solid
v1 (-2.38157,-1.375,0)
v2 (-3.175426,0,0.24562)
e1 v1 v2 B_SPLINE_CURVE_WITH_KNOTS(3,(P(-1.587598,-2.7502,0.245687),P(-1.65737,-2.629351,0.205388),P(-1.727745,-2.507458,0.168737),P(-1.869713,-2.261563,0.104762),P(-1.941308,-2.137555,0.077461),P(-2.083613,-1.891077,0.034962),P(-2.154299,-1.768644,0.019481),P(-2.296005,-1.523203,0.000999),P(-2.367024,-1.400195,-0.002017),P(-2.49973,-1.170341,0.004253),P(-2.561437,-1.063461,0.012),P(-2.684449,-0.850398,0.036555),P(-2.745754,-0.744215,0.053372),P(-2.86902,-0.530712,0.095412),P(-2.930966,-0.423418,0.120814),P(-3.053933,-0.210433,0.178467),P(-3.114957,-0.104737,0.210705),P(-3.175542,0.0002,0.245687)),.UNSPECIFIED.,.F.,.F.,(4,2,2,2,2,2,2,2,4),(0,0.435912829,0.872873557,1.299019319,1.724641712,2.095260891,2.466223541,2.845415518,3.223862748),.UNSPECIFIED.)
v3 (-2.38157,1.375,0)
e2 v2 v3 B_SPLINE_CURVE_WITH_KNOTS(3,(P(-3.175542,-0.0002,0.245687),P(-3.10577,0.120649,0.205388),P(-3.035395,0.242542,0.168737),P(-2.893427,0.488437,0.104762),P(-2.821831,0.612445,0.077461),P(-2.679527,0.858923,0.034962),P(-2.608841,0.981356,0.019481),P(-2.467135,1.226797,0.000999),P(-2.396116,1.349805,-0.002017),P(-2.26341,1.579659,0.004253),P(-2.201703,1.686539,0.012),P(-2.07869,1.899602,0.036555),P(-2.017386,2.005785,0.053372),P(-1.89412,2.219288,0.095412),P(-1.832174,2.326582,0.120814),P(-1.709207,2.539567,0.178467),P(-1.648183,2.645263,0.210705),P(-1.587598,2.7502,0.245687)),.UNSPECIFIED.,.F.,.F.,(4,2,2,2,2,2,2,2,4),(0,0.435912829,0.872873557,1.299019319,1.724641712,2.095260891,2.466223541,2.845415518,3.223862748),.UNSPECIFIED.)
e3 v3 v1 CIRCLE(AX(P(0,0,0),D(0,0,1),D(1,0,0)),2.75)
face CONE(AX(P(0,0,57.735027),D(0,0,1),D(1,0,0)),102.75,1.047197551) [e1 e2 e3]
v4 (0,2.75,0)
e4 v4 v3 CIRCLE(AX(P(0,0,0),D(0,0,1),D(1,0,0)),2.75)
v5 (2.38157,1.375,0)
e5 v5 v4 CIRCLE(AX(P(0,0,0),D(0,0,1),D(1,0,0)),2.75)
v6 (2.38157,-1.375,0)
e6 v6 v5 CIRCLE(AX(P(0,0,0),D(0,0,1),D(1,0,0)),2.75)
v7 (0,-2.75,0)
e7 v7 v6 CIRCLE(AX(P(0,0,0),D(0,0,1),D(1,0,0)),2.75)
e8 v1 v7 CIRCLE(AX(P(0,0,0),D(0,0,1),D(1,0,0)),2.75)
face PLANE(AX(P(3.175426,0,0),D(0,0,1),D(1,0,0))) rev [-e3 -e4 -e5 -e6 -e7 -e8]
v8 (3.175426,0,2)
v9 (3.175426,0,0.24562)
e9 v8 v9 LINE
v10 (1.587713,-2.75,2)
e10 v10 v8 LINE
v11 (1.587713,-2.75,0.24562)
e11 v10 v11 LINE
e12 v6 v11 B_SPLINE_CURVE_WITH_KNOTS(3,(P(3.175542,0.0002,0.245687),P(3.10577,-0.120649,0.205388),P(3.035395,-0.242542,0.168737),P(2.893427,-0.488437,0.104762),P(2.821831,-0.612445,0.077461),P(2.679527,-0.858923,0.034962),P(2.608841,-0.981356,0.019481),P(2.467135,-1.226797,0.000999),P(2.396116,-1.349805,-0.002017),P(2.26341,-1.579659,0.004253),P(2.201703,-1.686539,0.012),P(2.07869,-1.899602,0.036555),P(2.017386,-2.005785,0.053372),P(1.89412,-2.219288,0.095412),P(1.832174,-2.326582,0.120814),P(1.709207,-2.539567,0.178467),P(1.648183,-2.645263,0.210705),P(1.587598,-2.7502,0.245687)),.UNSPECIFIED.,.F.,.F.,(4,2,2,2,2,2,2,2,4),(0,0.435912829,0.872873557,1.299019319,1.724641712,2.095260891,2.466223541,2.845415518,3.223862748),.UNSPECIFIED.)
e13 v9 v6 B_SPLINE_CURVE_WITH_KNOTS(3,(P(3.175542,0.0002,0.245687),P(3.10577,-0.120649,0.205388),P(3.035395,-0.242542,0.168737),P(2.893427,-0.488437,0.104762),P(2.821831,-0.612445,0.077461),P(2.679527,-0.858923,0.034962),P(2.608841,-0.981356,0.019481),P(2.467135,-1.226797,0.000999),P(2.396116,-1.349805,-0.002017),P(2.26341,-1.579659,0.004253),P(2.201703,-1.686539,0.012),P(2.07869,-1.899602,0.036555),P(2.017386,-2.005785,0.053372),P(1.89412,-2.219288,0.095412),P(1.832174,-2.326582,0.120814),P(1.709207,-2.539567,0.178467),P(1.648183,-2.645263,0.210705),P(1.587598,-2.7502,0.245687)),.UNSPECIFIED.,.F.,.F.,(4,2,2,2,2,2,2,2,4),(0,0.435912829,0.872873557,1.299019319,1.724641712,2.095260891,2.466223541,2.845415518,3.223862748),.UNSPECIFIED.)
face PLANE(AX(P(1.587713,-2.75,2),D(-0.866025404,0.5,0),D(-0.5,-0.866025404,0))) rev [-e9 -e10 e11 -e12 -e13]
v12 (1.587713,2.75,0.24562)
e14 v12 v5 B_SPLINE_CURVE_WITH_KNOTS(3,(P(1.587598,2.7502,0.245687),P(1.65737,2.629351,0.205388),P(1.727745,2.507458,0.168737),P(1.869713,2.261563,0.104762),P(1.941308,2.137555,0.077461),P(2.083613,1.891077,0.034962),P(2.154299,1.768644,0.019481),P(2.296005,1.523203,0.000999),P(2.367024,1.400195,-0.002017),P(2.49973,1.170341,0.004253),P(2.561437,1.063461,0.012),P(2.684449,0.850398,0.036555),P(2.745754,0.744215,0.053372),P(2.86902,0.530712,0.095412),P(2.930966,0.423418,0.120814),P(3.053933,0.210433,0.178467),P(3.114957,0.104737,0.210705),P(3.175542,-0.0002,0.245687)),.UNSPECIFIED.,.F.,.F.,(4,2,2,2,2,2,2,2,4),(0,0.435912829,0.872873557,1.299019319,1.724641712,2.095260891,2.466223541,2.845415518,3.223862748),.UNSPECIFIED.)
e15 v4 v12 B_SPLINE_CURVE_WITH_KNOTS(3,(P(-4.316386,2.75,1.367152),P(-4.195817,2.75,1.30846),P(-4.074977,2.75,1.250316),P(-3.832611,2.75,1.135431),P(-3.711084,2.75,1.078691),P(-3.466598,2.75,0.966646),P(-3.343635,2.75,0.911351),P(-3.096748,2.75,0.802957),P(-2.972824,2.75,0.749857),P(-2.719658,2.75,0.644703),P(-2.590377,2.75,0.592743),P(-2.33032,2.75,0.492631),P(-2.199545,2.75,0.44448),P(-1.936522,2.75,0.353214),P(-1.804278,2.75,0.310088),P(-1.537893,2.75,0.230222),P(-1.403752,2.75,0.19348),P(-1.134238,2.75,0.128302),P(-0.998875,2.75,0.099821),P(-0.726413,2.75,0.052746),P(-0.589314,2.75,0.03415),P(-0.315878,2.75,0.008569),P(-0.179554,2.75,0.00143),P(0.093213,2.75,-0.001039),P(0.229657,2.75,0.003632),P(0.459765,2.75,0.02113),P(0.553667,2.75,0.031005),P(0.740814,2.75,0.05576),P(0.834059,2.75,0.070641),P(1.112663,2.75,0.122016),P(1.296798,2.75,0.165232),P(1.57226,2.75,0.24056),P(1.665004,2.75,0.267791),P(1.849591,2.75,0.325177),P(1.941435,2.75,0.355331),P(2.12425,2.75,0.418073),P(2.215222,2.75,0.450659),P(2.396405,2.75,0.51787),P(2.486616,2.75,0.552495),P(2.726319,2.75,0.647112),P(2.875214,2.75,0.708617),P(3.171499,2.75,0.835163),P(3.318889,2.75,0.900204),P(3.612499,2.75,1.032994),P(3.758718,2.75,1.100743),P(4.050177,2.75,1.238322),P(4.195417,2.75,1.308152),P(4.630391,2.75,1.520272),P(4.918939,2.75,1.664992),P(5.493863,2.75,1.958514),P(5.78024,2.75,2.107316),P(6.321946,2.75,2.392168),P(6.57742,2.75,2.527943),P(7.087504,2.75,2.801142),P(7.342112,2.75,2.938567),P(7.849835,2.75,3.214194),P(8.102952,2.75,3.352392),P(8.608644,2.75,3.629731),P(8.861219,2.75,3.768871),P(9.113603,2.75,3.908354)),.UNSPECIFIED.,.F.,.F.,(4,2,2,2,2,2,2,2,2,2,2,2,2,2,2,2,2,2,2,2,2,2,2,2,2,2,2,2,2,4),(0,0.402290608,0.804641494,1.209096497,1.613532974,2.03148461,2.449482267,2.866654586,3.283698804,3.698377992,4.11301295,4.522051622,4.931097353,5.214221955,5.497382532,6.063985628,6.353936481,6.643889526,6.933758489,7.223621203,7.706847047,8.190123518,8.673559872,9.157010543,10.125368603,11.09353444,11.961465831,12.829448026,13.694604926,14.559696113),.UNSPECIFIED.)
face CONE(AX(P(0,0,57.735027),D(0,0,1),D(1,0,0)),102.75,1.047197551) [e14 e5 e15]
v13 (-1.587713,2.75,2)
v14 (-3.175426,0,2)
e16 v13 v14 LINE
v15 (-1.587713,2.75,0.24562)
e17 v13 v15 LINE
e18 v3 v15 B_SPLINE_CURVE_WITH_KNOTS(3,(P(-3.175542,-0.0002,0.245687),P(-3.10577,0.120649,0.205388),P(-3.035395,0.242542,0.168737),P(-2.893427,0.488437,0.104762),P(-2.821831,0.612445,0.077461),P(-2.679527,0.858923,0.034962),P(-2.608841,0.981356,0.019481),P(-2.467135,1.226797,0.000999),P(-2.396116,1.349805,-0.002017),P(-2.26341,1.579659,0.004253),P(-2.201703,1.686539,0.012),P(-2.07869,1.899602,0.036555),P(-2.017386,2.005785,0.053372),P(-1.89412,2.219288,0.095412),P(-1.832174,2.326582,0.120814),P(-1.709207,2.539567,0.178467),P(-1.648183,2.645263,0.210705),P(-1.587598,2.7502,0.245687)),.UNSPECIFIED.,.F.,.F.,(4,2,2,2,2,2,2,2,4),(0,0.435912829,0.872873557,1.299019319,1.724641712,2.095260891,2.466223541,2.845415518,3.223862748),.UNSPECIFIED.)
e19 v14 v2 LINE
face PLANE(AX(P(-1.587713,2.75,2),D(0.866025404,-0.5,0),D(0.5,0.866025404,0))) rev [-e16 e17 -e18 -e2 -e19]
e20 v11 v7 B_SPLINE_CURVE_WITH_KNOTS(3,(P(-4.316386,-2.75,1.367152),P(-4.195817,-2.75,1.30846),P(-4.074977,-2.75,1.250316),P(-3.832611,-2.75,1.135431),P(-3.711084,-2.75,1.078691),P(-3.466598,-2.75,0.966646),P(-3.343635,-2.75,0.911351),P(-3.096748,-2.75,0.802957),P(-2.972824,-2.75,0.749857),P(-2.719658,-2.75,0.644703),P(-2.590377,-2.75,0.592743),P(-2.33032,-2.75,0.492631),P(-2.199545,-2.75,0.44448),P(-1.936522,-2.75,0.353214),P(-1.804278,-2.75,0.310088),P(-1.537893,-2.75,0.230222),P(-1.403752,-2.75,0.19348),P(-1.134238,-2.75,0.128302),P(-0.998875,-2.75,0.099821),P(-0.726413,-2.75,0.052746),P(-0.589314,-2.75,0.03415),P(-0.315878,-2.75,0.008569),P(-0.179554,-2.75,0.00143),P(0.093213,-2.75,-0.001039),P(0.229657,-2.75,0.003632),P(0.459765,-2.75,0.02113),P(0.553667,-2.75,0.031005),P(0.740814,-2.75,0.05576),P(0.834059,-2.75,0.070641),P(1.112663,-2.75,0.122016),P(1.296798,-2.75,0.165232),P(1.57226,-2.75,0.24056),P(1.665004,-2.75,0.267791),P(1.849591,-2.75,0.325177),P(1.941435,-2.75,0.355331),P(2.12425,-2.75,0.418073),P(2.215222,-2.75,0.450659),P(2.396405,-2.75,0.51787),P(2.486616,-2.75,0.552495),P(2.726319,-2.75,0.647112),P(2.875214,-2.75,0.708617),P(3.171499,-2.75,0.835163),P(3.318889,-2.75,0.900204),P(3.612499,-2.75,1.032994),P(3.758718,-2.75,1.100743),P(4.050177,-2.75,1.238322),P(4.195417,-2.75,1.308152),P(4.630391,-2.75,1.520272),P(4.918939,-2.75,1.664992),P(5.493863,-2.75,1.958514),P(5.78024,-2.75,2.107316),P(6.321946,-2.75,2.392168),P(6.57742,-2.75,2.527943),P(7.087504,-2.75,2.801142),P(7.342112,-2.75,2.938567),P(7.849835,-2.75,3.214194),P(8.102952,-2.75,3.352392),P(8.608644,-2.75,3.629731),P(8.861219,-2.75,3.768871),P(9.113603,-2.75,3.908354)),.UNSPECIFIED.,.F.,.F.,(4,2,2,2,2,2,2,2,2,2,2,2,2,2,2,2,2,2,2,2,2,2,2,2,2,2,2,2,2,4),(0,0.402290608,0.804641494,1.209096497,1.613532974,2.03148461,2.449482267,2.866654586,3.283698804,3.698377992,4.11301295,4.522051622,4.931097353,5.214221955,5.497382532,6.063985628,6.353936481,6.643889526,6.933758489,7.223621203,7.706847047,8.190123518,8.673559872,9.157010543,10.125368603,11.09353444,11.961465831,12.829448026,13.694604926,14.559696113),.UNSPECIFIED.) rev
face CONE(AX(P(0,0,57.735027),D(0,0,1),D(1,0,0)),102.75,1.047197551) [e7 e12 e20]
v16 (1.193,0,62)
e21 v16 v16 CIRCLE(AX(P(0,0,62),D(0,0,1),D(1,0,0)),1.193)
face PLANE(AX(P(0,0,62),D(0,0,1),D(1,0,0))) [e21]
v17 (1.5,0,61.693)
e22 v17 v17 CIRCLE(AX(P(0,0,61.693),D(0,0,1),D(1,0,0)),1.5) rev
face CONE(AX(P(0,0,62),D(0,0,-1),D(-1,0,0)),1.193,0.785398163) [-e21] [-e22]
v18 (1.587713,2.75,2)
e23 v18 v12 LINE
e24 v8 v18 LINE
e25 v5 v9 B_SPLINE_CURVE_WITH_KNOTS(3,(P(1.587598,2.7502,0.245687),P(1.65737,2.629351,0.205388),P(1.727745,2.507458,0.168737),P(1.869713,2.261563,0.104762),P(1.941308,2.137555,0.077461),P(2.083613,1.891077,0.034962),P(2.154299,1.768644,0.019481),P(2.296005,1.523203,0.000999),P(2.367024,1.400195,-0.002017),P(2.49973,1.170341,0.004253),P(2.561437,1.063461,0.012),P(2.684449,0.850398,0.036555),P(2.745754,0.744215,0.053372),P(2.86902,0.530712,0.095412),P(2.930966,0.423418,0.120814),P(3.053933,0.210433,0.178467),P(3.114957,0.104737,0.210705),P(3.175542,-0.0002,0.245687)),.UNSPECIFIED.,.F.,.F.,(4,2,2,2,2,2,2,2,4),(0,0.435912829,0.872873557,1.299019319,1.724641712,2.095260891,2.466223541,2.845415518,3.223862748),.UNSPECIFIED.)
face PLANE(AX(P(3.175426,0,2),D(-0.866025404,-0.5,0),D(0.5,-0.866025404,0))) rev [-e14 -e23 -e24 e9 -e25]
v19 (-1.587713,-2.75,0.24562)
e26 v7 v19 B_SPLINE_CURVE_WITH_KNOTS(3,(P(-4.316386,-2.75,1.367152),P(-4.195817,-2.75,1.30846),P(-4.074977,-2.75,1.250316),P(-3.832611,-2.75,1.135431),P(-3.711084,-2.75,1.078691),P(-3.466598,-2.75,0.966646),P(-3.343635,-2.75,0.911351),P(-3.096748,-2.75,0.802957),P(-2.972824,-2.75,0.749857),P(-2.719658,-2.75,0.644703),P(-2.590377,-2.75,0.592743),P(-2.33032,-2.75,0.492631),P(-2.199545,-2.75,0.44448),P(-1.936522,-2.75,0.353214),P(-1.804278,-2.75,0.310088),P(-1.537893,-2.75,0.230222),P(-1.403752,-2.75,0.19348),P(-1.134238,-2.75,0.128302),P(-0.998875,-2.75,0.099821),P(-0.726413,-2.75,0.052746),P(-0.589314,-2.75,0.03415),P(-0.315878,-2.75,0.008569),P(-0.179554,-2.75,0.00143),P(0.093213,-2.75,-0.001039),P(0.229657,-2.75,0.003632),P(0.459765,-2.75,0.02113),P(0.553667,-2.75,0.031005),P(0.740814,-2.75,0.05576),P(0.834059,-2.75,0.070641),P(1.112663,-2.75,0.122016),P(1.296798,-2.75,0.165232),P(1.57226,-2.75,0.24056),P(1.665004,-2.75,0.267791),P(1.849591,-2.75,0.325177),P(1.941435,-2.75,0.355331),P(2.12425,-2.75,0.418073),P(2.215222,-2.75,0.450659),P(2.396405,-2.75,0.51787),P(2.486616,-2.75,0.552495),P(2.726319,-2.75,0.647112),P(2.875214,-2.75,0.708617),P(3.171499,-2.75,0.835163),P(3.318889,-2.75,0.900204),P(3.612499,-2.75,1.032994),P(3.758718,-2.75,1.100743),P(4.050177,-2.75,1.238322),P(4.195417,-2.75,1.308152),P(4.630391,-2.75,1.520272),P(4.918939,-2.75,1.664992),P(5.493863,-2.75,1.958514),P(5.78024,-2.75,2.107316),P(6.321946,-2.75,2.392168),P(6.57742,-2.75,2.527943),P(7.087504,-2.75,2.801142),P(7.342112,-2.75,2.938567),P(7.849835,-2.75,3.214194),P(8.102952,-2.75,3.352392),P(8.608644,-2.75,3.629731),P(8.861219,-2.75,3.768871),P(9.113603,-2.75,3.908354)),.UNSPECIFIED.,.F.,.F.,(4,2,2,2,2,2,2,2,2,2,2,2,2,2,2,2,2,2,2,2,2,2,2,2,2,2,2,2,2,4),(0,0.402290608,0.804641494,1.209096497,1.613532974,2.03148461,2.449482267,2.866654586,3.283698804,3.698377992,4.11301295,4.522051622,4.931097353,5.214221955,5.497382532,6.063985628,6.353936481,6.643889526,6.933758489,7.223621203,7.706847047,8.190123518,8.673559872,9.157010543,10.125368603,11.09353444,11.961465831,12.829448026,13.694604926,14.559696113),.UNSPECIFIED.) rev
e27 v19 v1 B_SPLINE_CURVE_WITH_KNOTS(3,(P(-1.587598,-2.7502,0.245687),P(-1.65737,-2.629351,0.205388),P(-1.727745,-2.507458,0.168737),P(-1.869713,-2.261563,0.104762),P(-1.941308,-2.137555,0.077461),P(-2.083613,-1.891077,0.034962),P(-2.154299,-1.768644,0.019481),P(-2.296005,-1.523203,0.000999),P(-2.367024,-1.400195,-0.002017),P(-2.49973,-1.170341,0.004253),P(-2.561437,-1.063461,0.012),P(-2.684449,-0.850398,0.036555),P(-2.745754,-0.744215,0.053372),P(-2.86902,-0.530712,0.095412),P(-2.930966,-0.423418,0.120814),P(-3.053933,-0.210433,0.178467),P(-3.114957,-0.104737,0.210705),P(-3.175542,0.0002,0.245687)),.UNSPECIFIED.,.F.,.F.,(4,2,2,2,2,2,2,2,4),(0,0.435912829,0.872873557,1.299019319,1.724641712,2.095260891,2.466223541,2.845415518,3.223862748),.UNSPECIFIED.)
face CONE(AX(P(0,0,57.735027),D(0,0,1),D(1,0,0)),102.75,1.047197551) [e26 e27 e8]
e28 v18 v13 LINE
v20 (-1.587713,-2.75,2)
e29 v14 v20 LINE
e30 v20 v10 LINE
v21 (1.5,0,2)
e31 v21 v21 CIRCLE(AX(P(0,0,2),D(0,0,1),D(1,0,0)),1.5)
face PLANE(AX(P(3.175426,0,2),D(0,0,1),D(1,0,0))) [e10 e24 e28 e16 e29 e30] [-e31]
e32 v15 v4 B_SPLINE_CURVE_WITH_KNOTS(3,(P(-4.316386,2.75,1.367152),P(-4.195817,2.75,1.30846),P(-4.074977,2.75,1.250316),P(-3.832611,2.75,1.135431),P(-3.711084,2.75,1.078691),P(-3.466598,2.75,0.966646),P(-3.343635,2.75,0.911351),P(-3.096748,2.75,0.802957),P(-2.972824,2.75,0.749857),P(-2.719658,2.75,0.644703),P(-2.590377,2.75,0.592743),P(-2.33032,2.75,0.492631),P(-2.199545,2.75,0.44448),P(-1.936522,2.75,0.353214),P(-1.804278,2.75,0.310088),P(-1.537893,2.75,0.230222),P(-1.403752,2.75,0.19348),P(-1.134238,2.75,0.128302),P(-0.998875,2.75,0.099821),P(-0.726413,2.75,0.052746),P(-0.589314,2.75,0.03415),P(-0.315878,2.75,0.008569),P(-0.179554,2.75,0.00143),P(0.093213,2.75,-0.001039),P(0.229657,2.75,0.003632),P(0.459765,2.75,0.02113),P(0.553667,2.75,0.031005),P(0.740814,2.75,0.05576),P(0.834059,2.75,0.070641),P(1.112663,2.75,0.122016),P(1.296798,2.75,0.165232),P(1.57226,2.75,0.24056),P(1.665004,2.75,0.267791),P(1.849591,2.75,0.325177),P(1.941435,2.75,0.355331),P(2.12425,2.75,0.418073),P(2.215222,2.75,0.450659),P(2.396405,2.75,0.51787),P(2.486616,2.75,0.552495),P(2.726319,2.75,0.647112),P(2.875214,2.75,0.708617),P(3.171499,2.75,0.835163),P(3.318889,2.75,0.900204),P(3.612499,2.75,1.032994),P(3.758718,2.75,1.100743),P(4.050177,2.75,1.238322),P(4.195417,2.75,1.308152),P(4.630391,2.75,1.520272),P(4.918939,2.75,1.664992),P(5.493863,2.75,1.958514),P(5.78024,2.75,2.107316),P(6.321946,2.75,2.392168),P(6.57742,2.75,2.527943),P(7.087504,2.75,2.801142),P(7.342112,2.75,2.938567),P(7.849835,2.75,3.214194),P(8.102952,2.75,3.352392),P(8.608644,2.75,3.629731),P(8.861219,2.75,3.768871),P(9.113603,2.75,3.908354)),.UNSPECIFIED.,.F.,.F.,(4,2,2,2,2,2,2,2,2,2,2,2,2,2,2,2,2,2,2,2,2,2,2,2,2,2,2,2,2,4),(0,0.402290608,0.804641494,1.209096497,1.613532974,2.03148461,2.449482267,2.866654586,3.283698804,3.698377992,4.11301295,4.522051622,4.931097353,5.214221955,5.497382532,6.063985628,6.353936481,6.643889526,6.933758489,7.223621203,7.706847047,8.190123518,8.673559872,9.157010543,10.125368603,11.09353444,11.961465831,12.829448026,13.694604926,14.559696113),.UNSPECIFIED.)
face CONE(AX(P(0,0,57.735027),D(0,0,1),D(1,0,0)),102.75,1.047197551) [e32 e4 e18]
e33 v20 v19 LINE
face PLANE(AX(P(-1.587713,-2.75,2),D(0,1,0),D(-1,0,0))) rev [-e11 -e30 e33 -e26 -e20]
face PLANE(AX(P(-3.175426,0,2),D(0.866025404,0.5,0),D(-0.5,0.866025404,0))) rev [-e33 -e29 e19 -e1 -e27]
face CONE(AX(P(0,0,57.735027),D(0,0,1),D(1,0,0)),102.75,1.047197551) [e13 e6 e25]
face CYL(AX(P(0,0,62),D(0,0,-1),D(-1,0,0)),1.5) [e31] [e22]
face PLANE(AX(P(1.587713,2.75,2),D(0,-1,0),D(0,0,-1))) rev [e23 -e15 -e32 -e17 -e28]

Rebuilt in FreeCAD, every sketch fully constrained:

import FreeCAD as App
import Part
import Sketcher
Q = App.Units.Quantity


def edges_at(feature, points):
    """Names of the edges that pass closest to the given points."""
    edges = feature.Shape.Edges
    near = lambda p: min(range(len(edges)), key=lambda i: edges[i].distToShape(Part.Vertex(*p))[0])
    return sorted({f"Edge{near(p) + 1}" for p in points})

doc = App.newDocument("Part")
body = doc.addObject("PartDesign::Body", "Body")

# Sketch on XY plane
sketch1 = body.newObject("Sketcher::SketchObject", "Sketch")
sketch1.AttachmentSupport = (doc.getObject("XY_Plane"), [""])
sketch1.MapMode = "FlatFace"
sketch1.addGeometry(Part.LineSegment(App.Vector(3.2, 0, 0), App.Vector(1.6, 2.8, 0)), False)
sketch1.addGeometry(Part.LineSegment(App.Vector(1.6, 2.8, 0), App.Vector(-1.6, 2.8, 0)), False)
sketch1.addGeometry(Part.LineSegment(App.Vector(-1.6, 2.8, 0), App.Vector(-3.2, 0, 0)), False)
sketch1.addGeometry(Part.LineSegment(App.Vector(-3.2, 0, 0), App.Vector(-1.6, -2.8, 0)), False)
sketch1.addGeometry(Part.LineSegment(App.Vector(-1.6, -2.8, 0), App.Vector(1.6, -2.8, 0)), False)
sketch1.addGeometry(Part.LineSegment(App.Vector(1.6, -2.8, 0), App.Vector(3.2, 0, 0)), False)
sketch1.addConstraint(Sketcher.Constraint("Coincident", 0, 2, 1, 1))
sketch1.addConstraint(Sketcher.Constraint("Coincident", 1, 2, 2, 1))
sketch1.addConstraint(Sketcher.Constraint("Coincident", 2, 2, 3, 1))
sketch1.addConstraint(Sketcher.Constraint("Coincident", 3, 2, 4, 1))
sketch1.addConstraint(Sketcher.Constraint("Coincident", 4, 2, 5, 1))
sketch1.addConstraint(Sketcher.Constraint("Coincident", 5, 2, 0, 1))
sketch1.addConstraint(Sketcher.Constraint("Horizontal", 1))
sketch1.addConstraint(Sketcher.Constraint("Horizontal", 4))
sketch1.addConstraint(Sketcher.Constraint("Symmetric", 0, 2, 3, 2, -1, 1))
sketch1.addConstraint(Sketcher.Constraint("Symmetric", 2, 2, 5, 2, -1, 1))
sketch1.addConstraint(Sketcher.Constraint("PointOnObject", 2, 2, -1))
sketch1.addConstraint(Sketcher.Constraint("Parallel", 2, 5))
sketch1.addConstraint(Sketcher.Constraint("Vertical", 1, 2, 3, 2))
sketch1.addConstraint(Sketcher.Constraint("Angle", 0, Q("120 deg")))
sketch1.addConstraint(Sketcher.Constraint("DistanceY", 3, 2, 1, 2, 5.5))
sketch1.addConstraint(Sketcher.Constraint("DistanceX", 1, 2, 1, 1, 3.175426))
pad1 = body.newObject("PartDesign::Pad", "Pad")
pad1.Profile = sketch1
pad1.Length = 2

# Sketch on XY plane
sketch2 = body.newObject("Sketcher::SketchObject", "Sketch001")
sketch2.AttachmentSupport = (doc.getObject("XY_Plane"), [""])
sketch2.MapMode = "FlatFace"
sketch2.AttachmentOffset = App.Placement(App.Vector(0, 0, 2), App.Rotation())
sketch2.addGeometry(Part.Circle(App.Vector(0, 0, 0), App.Vector(0, 0, 1), 1.5), False)
sketch2.addConstraint(Sketcher.Constraint("Coincident", 0, 3, -1, 1))
sketch2.addConstraint(Sketcher.Constraint("Diameter", 0, 3.0))
pad2 = body.newObject("PartDesign::Pad", "Pad001")
pad2.Profile = sketch2
pad2.Length = 60

# Sketch on YZ plane
sketch3 = body.newObject("Sketcher::SketchObject", "Sketch002")
sketch3.AttachmentSupport = (doc.getObject("YZ_Plane"), [""])
sketch3.MapMode = "FlatFace"
sketch3.addGeometry(Part.LineSegment(App.Vector(3, 0, 0), App.Vector(103, 0, 0)), False)
sketch3.addGeometry(Part.LineSegment(App.Vector(103, 0, 0), App.Vector(103, 58, 0)), False)
sketch3.addGeometry(Part.LineSegment(App.Vector(103, 58, 0), App.Vector(3, 0, 0)), False)
sketch3.addConstraint(Sketcher.Constraint("Coincident", 0, 2, 1, 1))
sketch3.addConstraint(Sketcher.Constraint("Coincident", 1, 2, 2, 1))
sketch3.addConstraint(Sketcher.Constraint("Coincident", 2, 2, 0, 1))
sketch3.addConstraint(Sketcher.Constraint("Horizontal", 0))
sketch3.addConstraint(Sketcher.Constraint("Vertical", 1))
sketch3.addConstraint(Sketcher.Constraint("PointOnObject", 0, 2, -1))
sketch3.addConstraint(Sketcher.Constraint("DistanceX", 0, 1, 0, 2, 100.0))
sketch3.addConstraint(Sketcher.Constraint("Angle", 2, Q("-150 deg")))
sketch3.addConstraint(Sketcher.Constraint("DistanceX", -1, 1, 0, 2, 102.75))
groove = body.newObject("PartDesign::Groove", "Groove")
groove.Profile = sketch3
groove.ReferenceAxis = (sketch3, ["V_Axis"])
groove.Angle = 360
doc.recompute()

chamfer = body.newObject("PartDesign::Chamfer", "Chamfer")
chamfer.Base = (groove, edges_at(groove, [(-1.5, 0, 62)]))
chamfer.Size = 0.307

doc.recompute()
